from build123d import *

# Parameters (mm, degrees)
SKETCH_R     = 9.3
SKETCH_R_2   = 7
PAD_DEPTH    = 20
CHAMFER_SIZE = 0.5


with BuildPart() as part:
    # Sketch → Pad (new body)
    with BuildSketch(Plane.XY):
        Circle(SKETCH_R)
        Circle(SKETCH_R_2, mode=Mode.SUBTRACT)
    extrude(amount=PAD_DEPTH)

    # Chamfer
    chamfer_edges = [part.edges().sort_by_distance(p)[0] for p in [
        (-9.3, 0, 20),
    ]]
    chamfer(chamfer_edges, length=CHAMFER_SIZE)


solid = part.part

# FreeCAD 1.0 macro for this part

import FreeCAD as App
import Part
import Sketcher
Q = App.Units.Quantity


def edges_at(feature, points):
    """Names of the edges that pass closest to the given points."""
    edges = feature.Shape.Edges
    near = lambda p: min(range(len(edges)), key=lambda i: edges[i].distToShape(Part.Vertex(*p))[0])
    return sorted({f"Edge{near(p) + 1}" for p in points})

doc = App.newDocument("Part")
params = doc.addObject("Spreadsheet::Sheet", "Params")
for row, (alias, value) in enumerate([
    ("sketch1_diameter", "14 mm"),
    ("sketch1_diameter2", "18.6 mm"),
    ("pad1_length", "20 mm"),
    ("chamfer_size", "0.5 mm"),
], start=1):
    params.set(f"A{row}", alias)
    params.set(f"B{row}", "=" + value)
    params.setAlias(f"B{row}", alias)

body = doc.addObject("PartDesign::Body", "Body")

sketch1 = doc.addObject("Sketcher::SketchObject", "Sketch")
body.addObject(sketch1)
sketch1.AttachmentSupport = (doc.XY_Plane, [""])
sketch1.MapMode = "FlatFace"
sketch1.addGeometry([
    Part.Circle(App.Vector(0, 0, 0), App.Vector(0, 0, 1), 9.3),
    Part.Circle(App.Vector(0, 0, 0), App.Vector(0, 0, 1), 7),
], False)
sketch1.addConstraint([
    Sketcher.Constraint("Coincident", 0, 3, -1, 1),
    Sketcher.Constraint("Coincident", 1, 3, -1, 1),
    Sketcher.Constraint("Diameter", 1, Q("14 mm")),
    Sketcher.Constraint("Diameter", 0, Q("18.6 mm")),
])
sketch1.setExpression("Constraints[2]", "Params.sketch1_diameter")
sketch1.setExpression("Constraints[3]", "Params.sketch1_diameter2")
pad1 = doc.addObject("PartDesign::Pad", "Pad")
body.addObject(pad1)
pad1.Profile = sketch1
pad1.setExpression("Length", "Params.pad1_length")
doc.recompute()

chamfer = doc.addObject("PartDesign::Chamfer", "Chamfer")
body.addObject(chamfer)
chamfer.Base = (pad1, edges_at(pad1, [(-9.3, 0, 20)]))
chamfer.setExpression("Size", "Params.chamfer_size")

doc.recompute()
